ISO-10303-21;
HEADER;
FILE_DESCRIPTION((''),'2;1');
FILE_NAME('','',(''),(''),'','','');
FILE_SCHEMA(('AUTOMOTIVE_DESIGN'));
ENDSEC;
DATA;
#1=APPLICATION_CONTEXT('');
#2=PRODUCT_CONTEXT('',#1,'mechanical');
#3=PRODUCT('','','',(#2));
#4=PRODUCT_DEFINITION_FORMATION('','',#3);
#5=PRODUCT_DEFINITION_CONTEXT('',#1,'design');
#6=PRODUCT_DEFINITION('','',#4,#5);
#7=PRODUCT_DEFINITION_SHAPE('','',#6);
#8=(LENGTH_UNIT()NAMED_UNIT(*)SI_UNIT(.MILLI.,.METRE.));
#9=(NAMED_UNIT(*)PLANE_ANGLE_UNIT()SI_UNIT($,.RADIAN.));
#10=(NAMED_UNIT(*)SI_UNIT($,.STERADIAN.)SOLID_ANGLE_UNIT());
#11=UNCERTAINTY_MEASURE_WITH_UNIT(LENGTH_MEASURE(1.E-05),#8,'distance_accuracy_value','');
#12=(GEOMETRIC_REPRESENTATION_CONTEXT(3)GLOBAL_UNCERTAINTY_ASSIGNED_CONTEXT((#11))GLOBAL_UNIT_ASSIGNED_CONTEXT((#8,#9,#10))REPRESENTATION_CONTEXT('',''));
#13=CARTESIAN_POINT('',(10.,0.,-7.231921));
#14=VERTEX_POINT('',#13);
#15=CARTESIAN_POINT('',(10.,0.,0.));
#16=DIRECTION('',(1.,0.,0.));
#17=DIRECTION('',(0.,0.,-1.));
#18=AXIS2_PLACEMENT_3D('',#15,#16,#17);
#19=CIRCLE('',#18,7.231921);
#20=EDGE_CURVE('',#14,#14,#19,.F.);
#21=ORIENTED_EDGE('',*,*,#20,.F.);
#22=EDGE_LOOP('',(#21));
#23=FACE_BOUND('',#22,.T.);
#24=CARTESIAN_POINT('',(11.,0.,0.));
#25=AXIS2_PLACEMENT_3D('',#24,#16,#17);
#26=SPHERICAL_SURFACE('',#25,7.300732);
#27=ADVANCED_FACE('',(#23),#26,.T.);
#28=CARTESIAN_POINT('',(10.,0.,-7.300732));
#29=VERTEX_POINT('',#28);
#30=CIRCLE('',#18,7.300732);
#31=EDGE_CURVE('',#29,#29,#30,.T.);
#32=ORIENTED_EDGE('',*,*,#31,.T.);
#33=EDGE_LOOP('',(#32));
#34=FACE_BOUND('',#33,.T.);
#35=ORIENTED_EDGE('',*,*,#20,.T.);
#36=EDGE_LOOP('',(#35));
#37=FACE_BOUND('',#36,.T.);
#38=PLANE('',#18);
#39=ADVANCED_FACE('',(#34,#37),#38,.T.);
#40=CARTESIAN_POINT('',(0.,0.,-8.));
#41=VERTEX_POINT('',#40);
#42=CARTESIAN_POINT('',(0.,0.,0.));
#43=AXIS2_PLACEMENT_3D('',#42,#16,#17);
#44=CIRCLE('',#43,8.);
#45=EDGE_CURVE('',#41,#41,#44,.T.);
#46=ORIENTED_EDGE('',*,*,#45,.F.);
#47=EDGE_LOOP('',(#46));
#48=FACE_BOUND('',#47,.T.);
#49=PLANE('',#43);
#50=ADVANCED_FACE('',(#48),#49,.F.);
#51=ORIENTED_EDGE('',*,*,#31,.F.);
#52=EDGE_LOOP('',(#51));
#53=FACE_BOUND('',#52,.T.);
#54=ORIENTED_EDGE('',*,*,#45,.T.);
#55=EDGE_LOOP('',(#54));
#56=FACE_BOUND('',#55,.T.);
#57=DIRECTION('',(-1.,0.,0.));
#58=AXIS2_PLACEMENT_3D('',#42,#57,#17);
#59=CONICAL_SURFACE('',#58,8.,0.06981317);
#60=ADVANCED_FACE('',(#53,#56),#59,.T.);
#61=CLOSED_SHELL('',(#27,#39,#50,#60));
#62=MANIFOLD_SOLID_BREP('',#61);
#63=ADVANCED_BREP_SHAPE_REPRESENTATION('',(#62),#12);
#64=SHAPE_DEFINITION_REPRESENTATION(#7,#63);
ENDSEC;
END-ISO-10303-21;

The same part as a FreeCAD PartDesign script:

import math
import FreeCAD as App
import Part
import Sketcher
Q = App.Units.Quantity

doc = App.newDocument("Part")
params = doc.addObject("Spreadsheet::Sheet", "Params")
for row, (alias, value) in enumerate([
    ("sketch1_diameter", "16 mm"),
    ("pad1_length", "10 mm"),
    ("pad1_taper", "-4 deg"),
    ("revolution_angle", "360 deg"),
], start=1):
    params.set(f"A{row}", alias)
    params.set(f"B{row}", "=" + value)
    params.setAlias(f"B{row}", alias)

body = doc.addObject("PartDesign::Body", "Body")

# Sketch on YZ plane
sketch1 = body.newObject("Sketcher::SketchObject", "Sketch")
sketch1.AttachmentSupport = (doc.getObject("YZ_Plane"), [""])
sketch1.MapMode = "FlatFace"
sketch1.addGeometry(Part.Circle(App.Vector(0, 0, 0), App.Vector(0, 0, 1), 8), False)
sketch1.addConstraint(Sketcher.Constraint("Coincident", 0, 3, -1, 1))
sketch1.addConstraint(Sketcher.Constraint("Diameter", 0, Q("16 mm")))
sketch1.setExpression("Constraints[1]", "Params.sketch1_diameter")
pad1 = body.newObject("PartDesign::Pad", "Pad")
pad1.Profile = sketch1
pad1.setExpression("Length", "Params.pad1_length")
pad1.setExpression("TaperAngle", "Params.pad1_taper")

# Sketch on YZ plane
sketch2 = body.newObject("Sketcher::SketchObject", "Sketch001")
sketch2.AttachmentSupport = (doc.getObject("YZ_Plane"), [""])
sketch2.MapMode = "FlatFace"
sketch2.AttachmentOffset = App.Placement(App.Vector(0, 0, 11), App.Rotation())
sketch2.addGeometry(Part.LineSegment(App.Vector(7, 0, 0), App.Vector(-7, 0, 0)), False)
sketch2.addGeometry(Part.ArcOfCircle(Part.Circle(App.Vector(0, 0, 0), App.Vector(0, 0, 1), 7), math.radians(180), math.radians(360)), False)
sketch2.addConstraint(Sketcher.Constraint("Coincident", 0, 1, 1, 2))
sketch2.addConstraint(Sketcher.Constraint("Coincident", 1, 1, 0, 2))
sketch2.addConstraint(Sketcher.Constraint("Horizontal", 0))
sketch2.addConstraint(Sketcher.Constraint("Coincident", 1, 3, -1, 1))
sketch2.addConstraint(Sketcher.Constraint("PointOnObject", 0, 1, -1))
sketch2.addConstraint(Sketcher.Constraint("Radius", 1, Q("7.300732 mm")))
revolution = body.newObject("PartDesign::Revolution", "Revolution")
revolution.Profile = sketch2
revolution.ReferenceAxis = (sketch2, ["H_Axis"])
revolution.setExpression("Angle", "Params.revolution_angle")

doc.recompute()
